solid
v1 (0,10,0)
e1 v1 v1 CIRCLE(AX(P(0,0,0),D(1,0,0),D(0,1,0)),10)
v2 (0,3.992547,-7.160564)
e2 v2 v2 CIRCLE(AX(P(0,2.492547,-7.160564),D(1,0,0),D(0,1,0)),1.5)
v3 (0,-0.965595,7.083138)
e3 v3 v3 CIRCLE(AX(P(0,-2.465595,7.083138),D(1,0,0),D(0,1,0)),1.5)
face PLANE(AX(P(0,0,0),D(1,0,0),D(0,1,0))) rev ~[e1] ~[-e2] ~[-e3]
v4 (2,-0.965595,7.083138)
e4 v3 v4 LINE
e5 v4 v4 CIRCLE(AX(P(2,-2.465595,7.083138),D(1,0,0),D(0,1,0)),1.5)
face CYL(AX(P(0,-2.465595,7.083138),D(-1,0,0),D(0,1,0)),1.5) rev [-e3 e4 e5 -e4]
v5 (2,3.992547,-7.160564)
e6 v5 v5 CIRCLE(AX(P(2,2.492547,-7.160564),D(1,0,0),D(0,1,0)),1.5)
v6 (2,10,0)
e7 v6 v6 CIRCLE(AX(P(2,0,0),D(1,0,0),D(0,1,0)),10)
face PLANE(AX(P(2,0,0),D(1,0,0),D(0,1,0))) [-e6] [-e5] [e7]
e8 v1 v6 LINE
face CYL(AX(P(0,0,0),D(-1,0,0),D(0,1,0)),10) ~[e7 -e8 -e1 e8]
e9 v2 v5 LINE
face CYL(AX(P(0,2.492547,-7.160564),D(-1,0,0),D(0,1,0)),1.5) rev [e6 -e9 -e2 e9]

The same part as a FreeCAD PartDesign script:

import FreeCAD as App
import Part
import Sketcher

doc = App.newDocument("Part")
body = doc.addObject("PartDesign::Body", "Body")

# Sketch on YZ plane
sketch1 = body.newObject("Sketcher::SketchObject", "Sketch")
sketch1.AttachmentSupport = (doc.getObject("YZ_Plane"), [""])
sketch1.MapMode = "FlatFace"
sketch1.addGeometry([
    Part.Circle(App.Vector(0, 0, 0), App.Vector(0, 0, 1), 10),
    Part.Circle(App.Vector(2.492547, -7.160564, 0), App.Vector(0, 0, 1), 1.5),
    Part.Circle(App.Vector(-2.465595, 7.083138, 0), App.Vector(0, 0, 1), 1.5),
], False)
sketch1.addConstraint([
    Sketcher.Constraint("Coincident", 0, 3, -1, 1),
    Sketcher.Constraint("Equal", 1, 2),
    Sketcher.Constraint("Diameter", 0, 20.0),
    Sketcher.Constraint("Diameter", 1, 3.0),
    Sketcher.Constraint("DistanceY", 1, 3, 2, 3, 14.243702),
    Sketcher.Constraint("DistanceX", -1, 1, 1, 3, 2.492547),
    Sketcher.Constraint("DistanceY", 1, 3, -1, 1, 7.160564),
    Sketcher.Constraint("DistanceX", 2, 3, -1, 1, 2.465595),
])
pad1 = body.newObject("PartDesign::Pad", "Pad")
pad1.Profile = sketch1
pad1.Length = 2

doc.recompute()
